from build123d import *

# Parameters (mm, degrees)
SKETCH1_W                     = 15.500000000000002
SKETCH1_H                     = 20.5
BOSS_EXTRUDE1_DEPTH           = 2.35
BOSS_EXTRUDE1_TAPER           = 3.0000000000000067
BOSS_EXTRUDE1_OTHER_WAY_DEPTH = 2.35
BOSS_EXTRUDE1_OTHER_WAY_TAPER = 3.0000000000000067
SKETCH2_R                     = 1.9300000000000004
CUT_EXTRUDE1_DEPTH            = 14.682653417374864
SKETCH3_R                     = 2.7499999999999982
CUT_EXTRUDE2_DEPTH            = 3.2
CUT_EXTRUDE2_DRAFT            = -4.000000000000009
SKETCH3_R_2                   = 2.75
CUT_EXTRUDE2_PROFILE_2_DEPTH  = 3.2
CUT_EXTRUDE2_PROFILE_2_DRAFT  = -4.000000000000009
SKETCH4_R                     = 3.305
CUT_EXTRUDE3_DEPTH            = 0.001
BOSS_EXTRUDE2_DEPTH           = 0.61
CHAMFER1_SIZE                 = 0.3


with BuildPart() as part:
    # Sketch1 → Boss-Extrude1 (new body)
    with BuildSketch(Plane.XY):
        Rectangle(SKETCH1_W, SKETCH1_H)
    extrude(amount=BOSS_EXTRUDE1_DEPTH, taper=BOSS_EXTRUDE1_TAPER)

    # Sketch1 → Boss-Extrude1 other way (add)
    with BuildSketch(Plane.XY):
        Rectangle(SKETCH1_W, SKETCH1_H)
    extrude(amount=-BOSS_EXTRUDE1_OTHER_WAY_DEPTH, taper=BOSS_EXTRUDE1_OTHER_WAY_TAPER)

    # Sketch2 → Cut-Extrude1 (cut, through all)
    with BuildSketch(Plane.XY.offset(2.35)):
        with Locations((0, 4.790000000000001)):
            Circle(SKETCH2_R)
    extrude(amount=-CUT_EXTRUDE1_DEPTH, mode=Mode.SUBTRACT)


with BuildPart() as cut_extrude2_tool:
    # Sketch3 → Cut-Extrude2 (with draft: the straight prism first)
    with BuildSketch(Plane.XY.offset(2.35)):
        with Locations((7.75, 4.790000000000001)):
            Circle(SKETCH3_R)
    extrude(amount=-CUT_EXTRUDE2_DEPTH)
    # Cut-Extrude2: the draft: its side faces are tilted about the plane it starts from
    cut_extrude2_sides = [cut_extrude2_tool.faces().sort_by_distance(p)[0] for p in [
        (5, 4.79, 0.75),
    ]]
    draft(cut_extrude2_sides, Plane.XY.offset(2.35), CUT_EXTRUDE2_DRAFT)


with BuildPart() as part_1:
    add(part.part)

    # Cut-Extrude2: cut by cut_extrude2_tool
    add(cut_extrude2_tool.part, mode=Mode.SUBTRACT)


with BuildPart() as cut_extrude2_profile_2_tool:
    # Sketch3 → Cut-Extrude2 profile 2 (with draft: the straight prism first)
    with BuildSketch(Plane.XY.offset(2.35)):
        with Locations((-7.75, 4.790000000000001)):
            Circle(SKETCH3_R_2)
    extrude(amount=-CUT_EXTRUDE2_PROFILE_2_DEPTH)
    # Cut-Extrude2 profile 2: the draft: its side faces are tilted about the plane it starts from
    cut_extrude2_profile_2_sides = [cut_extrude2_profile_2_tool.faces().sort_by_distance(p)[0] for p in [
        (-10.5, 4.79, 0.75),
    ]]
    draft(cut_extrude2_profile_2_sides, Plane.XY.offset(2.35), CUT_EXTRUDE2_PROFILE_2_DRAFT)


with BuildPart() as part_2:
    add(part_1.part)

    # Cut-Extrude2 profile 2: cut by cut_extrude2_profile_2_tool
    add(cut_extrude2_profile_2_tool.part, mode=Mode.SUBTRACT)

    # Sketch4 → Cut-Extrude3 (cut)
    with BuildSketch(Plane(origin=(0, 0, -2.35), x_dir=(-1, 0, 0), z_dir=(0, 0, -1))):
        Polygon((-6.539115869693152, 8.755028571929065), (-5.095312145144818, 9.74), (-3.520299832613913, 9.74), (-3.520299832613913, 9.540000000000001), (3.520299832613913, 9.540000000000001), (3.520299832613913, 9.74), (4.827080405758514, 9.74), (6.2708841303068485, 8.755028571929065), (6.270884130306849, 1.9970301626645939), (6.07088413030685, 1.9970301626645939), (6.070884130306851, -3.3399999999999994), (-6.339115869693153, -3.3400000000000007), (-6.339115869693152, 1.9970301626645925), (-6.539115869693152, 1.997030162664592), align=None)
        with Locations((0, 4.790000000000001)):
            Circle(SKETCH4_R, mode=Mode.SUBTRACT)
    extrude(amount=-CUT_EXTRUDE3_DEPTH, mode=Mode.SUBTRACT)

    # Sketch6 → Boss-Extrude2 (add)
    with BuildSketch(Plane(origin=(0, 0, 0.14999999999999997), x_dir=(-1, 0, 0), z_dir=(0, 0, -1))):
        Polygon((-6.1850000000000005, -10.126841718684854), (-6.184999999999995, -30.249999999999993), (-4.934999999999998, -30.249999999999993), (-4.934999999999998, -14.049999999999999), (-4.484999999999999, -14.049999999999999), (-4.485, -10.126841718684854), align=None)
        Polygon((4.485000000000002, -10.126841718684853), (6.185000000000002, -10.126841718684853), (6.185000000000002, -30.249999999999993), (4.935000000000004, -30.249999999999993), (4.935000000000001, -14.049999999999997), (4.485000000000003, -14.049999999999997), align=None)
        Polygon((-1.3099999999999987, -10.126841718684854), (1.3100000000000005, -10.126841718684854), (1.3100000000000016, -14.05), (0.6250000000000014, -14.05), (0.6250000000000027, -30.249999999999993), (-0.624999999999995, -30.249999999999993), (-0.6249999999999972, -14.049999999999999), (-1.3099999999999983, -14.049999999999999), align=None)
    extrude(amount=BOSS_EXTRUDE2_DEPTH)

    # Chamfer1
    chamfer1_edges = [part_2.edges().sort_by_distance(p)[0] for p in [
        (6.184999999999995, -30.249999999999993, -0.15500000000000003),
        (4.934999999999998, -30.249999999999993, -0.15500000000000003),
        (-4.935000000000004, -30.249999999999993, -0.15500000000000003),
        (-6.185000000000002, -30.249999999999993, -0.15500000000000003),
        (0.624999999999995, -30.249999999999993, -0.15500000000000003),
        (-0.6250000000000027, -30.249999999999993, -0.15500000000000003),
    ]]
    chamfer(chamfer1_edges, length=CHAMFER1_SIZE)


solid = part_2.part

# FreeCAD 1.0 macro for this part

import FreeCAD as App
import Part
import Sketcher

V = App.Vector
Q = App.Units.Quantity


def edges_at(feature, points):
    """Names of the edges that pass closest to the given points."""
    edges = feature.Shape.Edges
    near = lambda p: min(range(len(edges)), key=lambda i: edges[i].distToShape(Part.Vertex(*p))[0])
    return sorted({f"Edge{near(p) + 1}" for p in points})


def faces_at(feature, points):
    """Names of the faces that lie closest to the given points."""
    faces = feature.Shape.Faces
    near = lambda p: min(range(len(faces)), key=lambda i: faces[i].distToShape(Part.Vertex(*p))[0])
    return sorted({f"Face{near(p) + 1}" for p in points})

doc = App.newDocument("Part")
params = doc.addObject("Spreadsheet::Sheet", "Params")
for row, (alias, value) in enumerate([
    ("sketch1_width", "15.5 mm"),
    ("sketch1_height", "20.5 mm"),
    ("pad1_length", "2.35 mm"),
    ("pad1_taper", "-3 deg"),
    ("sketch2_width", "15.5 mm"),
    ("sketch2_height", "20.5 mm"),
    ("pad2_length", "2.35 mm"),
    ("pad2_taper", "-3 deg"),
    ("sketch3_diameter", "3.86 mm"),
    ("sketch4_diameter", "5.5 mm"),
    ("pad3_length", "3.2 mm"),
    ("draft_angle", "4 deg"),
    ("sketch5_diameter", "5.5 mm"),
    ("pad4_length", "3.2 mm"),
    ("draft2_angle", "4 deg"),
    ("sketch6_diameter", "6.61 mm"),
    ("sketch6_width", "0.2 mm"),
    ("sketch6_width2", "12.41 mm"),
    ("pocket2_length", "0.001 mm"),
    ("sketch7_width", "1.7 mm"),
    ("sketch7_height", "16.2 mm"),
    ("sketch7_width2", "1.25 mm"),
    ("sketch7_width3", "2.62 mm"),
    ("pad5_length", "0.61 mm"),
    ("chamfer_size", "0.3 mm"),
], start=1):
    params.set(f"A{row}", alias)
    params.set(f"B{row}", "=" + value)
    params.setAlias(f"B{row}", alias)

body = doc.addObject("PartDesign::Body", "Body")

# Sketch on XY plane
sketch1 = body.newObject("Sketcher::SketchObject", "Sketch")
sketch1.AttachmentSupport = (doc.getObject("XY_Plane"), [""])
sketch1.MapMode = "FlatFace"
sketch1.addGeometry(Part.LineSegment(V(-7.75, 10.25, 0), V(-7.75, -10.25, 0)), False)
sketch1.addGeometry(Part.LineSegment(V(-7.75, -10.25, 0), V(7.75, -10.25, 0)), False)
sketch1.addGeometry(Part.LineSegment(V(7.75, -10.25, 0), V(7.75, 10.25, 0)), False)
sketch1.addGeometry(Part.LineSegment(V(7.75, 10.25, 0), V(-7.75, 10.25, 0)), False)
sketch1.addConstraint(Sketcher.Constraint("Coincident", 0, 2, 1, 1))
sketch1.addConstraint(Sketcher.Constraint("Coincident", 1, 2, 2, 1))
sketch1.addConstraint(Sketcher.Constraint("Coincident", 2, 2, 3, 1))
sketch1.addConstraint(Sketcher.Constraint("Coincident", 3, 2, 0, 1))
sketch1.addConstraint(Sketcher.Constraint("Vertical", 0))
sketch1.addConstraint(Sketcher.Constraint("Horizontal", 1))
sketch1.addConstraint(Sketcher.Constraint("Vertical", 2))
sketch1.addConstraint(Sketcher.Constraint("Horizontal", 3))
sketch1.addConstraint(Sketcher.Constraint("Symmetric", 0, 2, 2, 2, -1, 1))
sketch1.addConstraint(Sketcher.Constraint("DistanceX", 1, 1, 1, 2, Q("15.5 mm")))
sketch1.addConstraint(Sketcher.Constraint("DistanceY", 0, 2, 0, 1, Q("20.5 mm")))
sketch1.setExpression("Constraints[9]", "Params.sketch1_width")
sketch1.setExpression("Constraints[10]", "Params.sketch1_height")
pad1 = body.newObject("PartDesign::Pad", "Pad")
pad1.Profile = sketch1
pad1.setExpression("Length", "Params.pad1_length")
pad1.setExpression("TaperAngle", "Params.pad1_taper")

# Sketch on XY plane
sketch2 = body.newObject("Sketcher::SketchObject", "Sketch001")
sketch2.AttachmentSupport = (doc.getObject("XY_Plane"), [""])
sketch2.MapMode = "FlatFace"
sketch2.addGeometry(Part.LineSegment(V(-7.75, 10.25, 0), V(-7.75, -10.25, 0)), False)
sketch2.addGeometry(Part.LineSegment(V(-7.75, -10.25, 0), V(7.75, -10.25, 0)), False)
sketch2.addGeometry(Part.LineSegment(V(7.75, -10.25, 0), V(7.75, 10.25, 0)), False)
sketch2.addGeometry(Part.LineSegment(V(7.75, 10.25, 0), V(-7.75, 10.25, 0)), False)
sketch2.addConstraint(Sketcher.Constraint("Coincident", 0, 2, 1, 1))
sketch2.addConstraint(Sketcher.Constraint("Coincident", 1, 2, 2, 1))
sketch2.addConstraint(Sketcher.Constraint("Coincident", 2, 2, 3, 1))
sketch2.addConstraint(Sketcher.Constraint("Coincident", 3, 2, 0, 1))
sketch2.addConstraint(Sketcher.Constraint("Vertical", 0))
sketch2.addConstraint(Sketcher.Constraint("Horizontal", 1))
sketch2.addConstraint(Sketcher.Constraint("Vertical", 2))
sketch2.addConstraint(Sketcher.Constraint("Horizontal", 3))
sketch2.addConstraint(Sketcher.Constraint("Symmetric", 0, 2, 2, 2, -1, 1))
sketch2.addConstraint(Sketcher.Constraint("DistanceX", 1, 1, 1, 2, Q("15.5 mm")))
sketch2.addConstraint(Sketcher.Constraint("DistanceY", 0, 2, 0, 1, Q("20.5 mm")))
sketch2.setExpression("Constraints[9]", "Params.sketch2_width")
sketch2.setExpression("Constraints[10]", "Params.sketch2_height")
pad2 = body.newObject("PartDesign::Pad", "Pad001")
pad2.Profile = sketch2
pad2.setExpression("Length", "Params.pad2_length")
pad2.Reversed = True
pad2.setExpression("TaperAngle", "Params.pad2_taper")

# Sketch on XY plane
sketch3 = body.newObject("Sketcher::SketchObject", "Sketch002")
sketch3.AttachmentSupport = (doc.getObject("XY_Plane"), [""])
sketch3.MapMode = "FlatFace"
sketch3.AttachmentOffset = App.Placement(V(0, 0, 2.35), App.Rotation())
sketch3.addGeometry(Part.Circle(V(0, 4.79, 0), V(0, 0, 1), 1.93), False)
sketch3.addConstraint(Sketcher.Constraint("PointOnObject", 0, 3, -2))
sketch3.addConstraint(Sketcher.Constraint("Diameter", 0, Q("3.86 mm")))
sketch3.addConstraint(Sketcher.Constraint("DistanceY", -1, 1, 0, 3, Q("4.79 mm")))
sketch3.setExpression("Constraints[1]", "Params.sketch3_diameter")
pocket1 = body.newObject("PartDesign::Pocket", "Pocket")
pocket1.Profile = sketch3
pocket1.Type = "ThroughAll"
body2 = doc.addObject("PartDesign::Body", "Body001")

# Sketch on XY plane
sketch4 = body2.newObject("Sketcher::SketchObject", "Sketch003")
sketch4.AttachmentSupport = (doc.getObject("XY_Plane001"), [""])
sketch4.MapMode = "FlatFace"
sketch4.AttachmentOffset = App.Placement(V(0, 0, 2.35), App.Rotation())
sketch4.addGeometry(Part.Circle(V(7.75, 4.79, 0), V(0, 0, 1), 2.75), False)
sketch4.addConstraint(Sketcher.Constraint("Diameter", 0, Q("5.5 mm")))
sketch4.addConstraint(Sketcher.Constraint("DistanceX", -1, 1, 0, 3, Q("7.75 mm")))
sketch4.addConstraint(Sketcher.Constraint("DistanceY", -1, 1, 0, 3, Q("4.79 mm")))
sketch4.setExpression("Constraints[0]", "Params.sketch4_diameter")
pad3 = body2.newObject("PartDesign::Pad", "Pad002")
pad3.Profile = sketch4
pad3.setExpression("Length", "Params.pad3_length")
pad3.Reversed = True
doc.recompute()

datumplane = body2.newObject("PartDesign::Plane", "DatumPlane")
datumplane.AttachmentSupport = (doc.getObject("XY_Plane001"), [""])
datumplane.MapMode = "FlatFace"
datumplane.AttachmentOffset = App.Placement(V(0, 0, 2.35), App.Rotation())
draft = body2.newObject("PartDesign::Draft", "Draft")
draft.Base = (pad3, faces_at(pad3, [(5, 4.79, 0.75)]))
draft.NeutralPlane = (datumplane, [""])
draft.setExpression("Angle", "Params.draft_angle")
draft.Reversed = True
doc.recompute()

boolean = body.newObject("PartDesign::Boolean", "Boolean")
boolean.Type = "Cut"
boolean.addObjects([body2])
body3 = doc.addObject("PartDesign::Body", "Body002")

# Sketch on XY plane
sketch5 = body3.newObject("Sketcher::SketchObject", "Sketch004")
sketch5.AttachmentSupport = (doc.getObject("XY_Plane002"), [""])
sketch5.MapMode = "FlatFace"
sketch5.AttachmentOffset = App.Placement(V(0, 0, 2.35), App.Rotation())
sketch5.addGeometry(Part.Circle(V(-7.75, 4.79, 0), V(0, 0, 1), 2.75), False)
sketch5.addConstraint(Sketcher.Constraint("Diameter", 0, Q("5.5 mm")))
sketch5.addConstraint(Sketcher.Constraint("DistanceX", 0, 3, -1, 1, Q("7.75 mm")))
sketch5.addConstraint(Sketcher.Constraint("DistanceY", -1, 1, 0, 3, Q("4.79 mm")))
sketch5.setExpression("Constraints[0]", "Params.sketch5_diameter")
pad4 = body3.newObject("PartDesign::Pad", "Pad003")
pad4.Profile = sketch5
pad4.setExpression("Length", "Params.pad4_length")
pad4.Reversed = True
doc.recompute()

datumplane2 = body3.newObject("PartDesign::Plane", "DatumPlane001")
datumplane2.AttachmentSupport = (doc.getObject("XY_Plane002"), [""])
datumplane2.MapMode = "FlatFace"
datumplane2.AttachmentOffset = App.Placement(V(0, 0, 2.35), App.Rotation())
draft2 = body3.newObject("PartDesign::Draft", "Draft001")
draft2.Base = (pad4, faces_at(pad4, [(-10.5, 4.79, 0.75)]))
draft2.NeutralPlane = (datumplane2, [""])
draft2.setExpression("Angle", "Params.draft2_angle")
draft2.Reversed = True
doc.recompute()

boolean2 = body.newObject("PartDesign::Boolean", "Boolean001")
boolean2.Type = "Cut"
boolean2.addObjects([body3])

# Sketch on XY plane
sketch6 = body.newObject("Sketcher::SketchObject", "Sketch005")
sketch6.AttachmentSupport = (doc.getObject("XY_Plane"), [""])
sketch6.MapMode = "FlatFace"
sketch6.AttachmentOffset = App.Placement(V(0, 0, -2.35), App.Rotation())
sketch6.addGeometry(Part.LineSegment(V(5.095312, 9.74, 0), V(6.539116, 8.755029, 0)), False)
sketch6.addGeometry(Part.LineSegment(V(6.539116, 8.755029, 0), V(6.539116, 1.99703, 0)), False)
sketch6.addGeometry(Part.LineSegment(V(6.539116, 1.99703, 0), V(6.339116, 1.99703, 0)), False)
sketch6.addGeometry(Part.LineSegment(V(6.339116, 1.99703, 0), V(6.339116, -3.34, 0)), False)
sketch6.addGeometry(Part.LineSegment(V(6.339116, -3.34, 0), V(-6.070884, -3.34, 0)), False)
sketch6.addGeometry(Part.LineSegment(V(-6.070884, -3.34, 0), V(-6.070884, 1.99703, 0)), False)
sketch6.addGeometry(Part.LineSegment(V(-6.070884, 1.99703, 0), V(-6.270884, 1.99703, 0)), False)
sketch6.addGeometry(Part.LineSegment(V(-6.270884, 1.99703, 0), V(-6.270884, 8.755029, 0)), False)
sketch6.addGeometry(Part.LineSegment(V(-6.270884, 8.755029, 0), V(-4.82708, 9.74, 0)), False)
sketch6.addGeometry(Part.LineSegment(V(-4.82708, 9.74, 0), V(-3.5203, 9.74, 0)), False)
sketch6.addGeometry(Part.LineSegment(V(-3.5203, 9.74, 0), V(-3.5203, 9.54, 0)), False)
sketch6.addGeometry(Part.LineSegment(V(-3.5203, 9.54, 0), V(3.5203, 9.54, 0)), False)
sketch6.addGeometry(Part.LineSegment(V(3.5203, 9.54, 0), V(3.5203, 9.74, 0)), False)
sketch6.addGeometry(Part.LineSegment(V(3.5203, 9.74, 0), V(5.095312, 9.74, 0)), False)
sketch6.addGeometry(Part.Circle(V(0, 4.79, 0), V(0, 0, 1), 3.305), False)
sketch6.addConstraint(Sketcher.Constraint("Coincident", 0, 2, 1, 1))
sketch6.addConstraint(Sketcher.Constraint("Coincident", 1, 2, 2, 1))
sketch6.addConstraint(Sketcher.Constraint("Coincident", 2, 2, 3, 1))
sketch6.addConstraint(Sketcher.Constraint("Coincident", 3, 2, 4, 1))
sketch6.addConstraint(Sketcher.Constraint("Coincident", 4, 2, 5, 1))
sketch6.addConstraint(Sketcher.Constraint("Coincident", 5, 2, 6, 1))
sketch6.addConstraint(Sketcher.Constraint("Coincident", 6, 2, 7, 1))
sketch6.addConstraint(Sketcher.Constraint("Coincident", 7, 2, 8, 1))
sketch6.addConstraint(Sketcher.Constraint("Coincident", 8, 2, 9, 1))
sketch6.addConstraint(Sketcher.Constraint("Coincident", 9, 2, 10, 1))
sketch6.addConstraint(Sketcher.Constraint("Coincident", 10, 2, 11, 1))
sketch6.addConstraint(Sketcher.Constraint("Coincident", 11, 2, 12, 1))
sketch6.addConstraint(Sketcher.Constraint("Coincident", 12, 2, 13, 1))
sketch6.addConstraint(Sketcher.Constraint("Coincident", 13, 2, 0, 1))
sketch6.addConstraint(Sketcher.Constraint("Vertical", 1))
sketch6.addConstraint(Sketcher.Constraint("Horizontal", 2))
sketch6.addConstraint(Sketcher.Constraint("Vertical", 3))
sketch6.addConstraint(Sketcher.Constraint("Horizontal", 4))
sketch6.addConstraint(Sketcher.Constraint("Vertical", 5))
sketch6.addConstraint(Sketcher.Constraint("Horizontal", 6))
sketch6.addConstraint(Sketcher.Constraint("Vertical", 7))
sketch6.addConstraint(Sketcher.Constraint("Horizontal", 9))
sketch6.addConstraint(Sketcher.Constraint("Vertical", 10))
sketch6.addConstraint(Sketcher.Constraint("Horizontal", 11))
sketch6.addConstraint(Sketcher.Constraint("Vertical", 12))
sketch6.addConstraint(Sketcher.Constraint("Horizontal", 13))
sketch6.addConstraint(Sketcher.Constraint("Symmetric", 9, 2, 12, 2, -2))
sketch6.addConstraint(Sketcher.Constraint("PointOnObject", 14, 3, -2))
sketch6.addConstraint(Sketcher.Constraint("Horizontal", 2, 2, 5, 2))
sketch6.addConstraint(Sketcher.Constraint("Horizontal", 0, 2, 7, 2))
sketch6.addConstraint(Sketcher.Constraint("Equal", 2, 6))
sketch6.addConstraint(Sketcher.Constraint("Equal", 6, 10))
sketch6.addConstraint(Sketcher.Constraint("Equal", 0, 8))
sketch6.addConstraint(Sketcher.Constraint("Diameter", 14, Q("6.61 mm")))
sketch6.addConstraint(Sketcher.Constraint("DistanceX", 2, 2, 2, 1, Q("0.2 mm")))
sketch6.addConstraint(Sketcher.Constraint("DistanceX", 4, 2, 4, 1, Q("12.41 mm")))
sketch6.addConstraint(Sketcher.Constraint("DistanceY", 1, 2, 1, 1, Q("6.757998 mm")))
sketch6.addConstraint(Sketcher.Constraint("DistanceY", -1, 1, 14, 3, Q("4.79 mm")))
sketch6.addConstraint(Sketcher.Constraint("DistanceY", 3, 2, -1, 1, Q("3.34 mm")))
sketch6.addConstraint(Sketcher.Constraint("DistanceY", -1, 1, 8, 2, Q("9.74 mm")))
sketch6.addConstraint(Sketcher.Constraint("DistanceX", 11, 1, 11, 2, Q("7.0406 mm")))
sketch6.addConstraint(Sketcher.Constraint("DistanceX", 9, 1, 9, 2, Q("1.306781 mm")))
sketch6.addConstraint(Sketcher.Constraint("DistanceY", 3, 2, 3, 1, Q("5.33703 mm")))
sketch6.addConstraint(Sketcher.Constraint("Distance", 0, Q("1.747781 mm")))
sketch6.setExpression("Constraints[33]", "Params.sketch6_diameter")
sketch6.setExpression("Constraints[34]", "Params.sketch6_width")
sketch6.setExpression("Constraints[35]", "Params.sketch6_width2")
pocket2 = body.newObject("PartDesign::Pocket", "Pocket001")
pocket2.Profile = sketch6
pocket2.setExpression("Length", "Params.pocket2_length")
pocket2.Reversed = True

# Sketch on XY plane
sketch7 = body.newObject("Sketcher::SketchObject", "Sketch006")
sketch7.AttachmentSupport = (doc.getObject("XY_Plane"), [""])
sketch7.MapMode = "FlatFace"
sketch7.AttachmentOffset = App.Placement(V(0, 0, 0.15), App.Rotation())
sketch7.addGeometry(Part.LineSegment(V(6.185, -10.126842, 0), V(6.185, -30.25, 0)), False)
sketch7.addGeometry(Part.LineSegment(V(6.185, -30.25, 0), V(4.935, -30.25, 0)), False)
sketch7.addGeometry(Part.LineSegment(V(4.935, -30.25, 0), V(4.935, -14.05, 0)), False)
sketch7.addGeometry(Part.LineSegment(V(4.935, -14.05, 0), V(4.485, -14.05, 0)), False)
sketch7.addGeometry(Part.LineSegment(V(4.485, -14.05, 0), V(4.485, -10.126842, 0)), False)
sketch7.addGeometry(Part.LineSegment(V(4.485, -10.126842, 0), V(6.185, -10.126842, 0)), False)
sketch7.addGeometry(Part.LineSegment(V(-6.185, -10.126842, 0), V(-4.485, -10.126842, 0)), False)
sketch7.addGeometry(Part.LineSegment(V(-4.485, -10.126842, 0), V(-4.485, -14.05, 0)), False)
sketch7.addGeometry(Part.LineSegment(V(-4.485, -14.05, 0), V(-4.935, -14.05, 0)), False)
sketch7.addGeometry(Part.LineSegment(V(-4.935, -14.05, 0), V(-4.935, -30.25, 0)), False)
sketch7.addGeometry(Part.LineSegment(V(-4.935, -30.25, 0), V(-6.185, -30.25, 0)), False)
sketch7.addGeometry(Part.LineSegment(V(-6.185, -30.25, 0), V(-6.185, -10.126842, 0)), False)
sketch7.addGeometry(Part.LineSegment(V(-1.31, -10.126842, 0), V(1.31, -10.126842, 0)), False)
sketch7.addGeometry(Part.LineSegment(V(1.31, -10.126842, 0), V(1.31, -14.05, 0)), False)
sketch7.addGeometry(Part.LineSegment(V(1.31, -14.05, 0), V(0.625, -14.05, 0)), False)
sketch7.addGeometry(Part.LineSegment(V(0.625, -14.05, 0), V(0.625, -30.25, 0)), False)
sketch7.addGeometry(Part.LineSegment(V(0.625, -30.25, 0), V(-0.625, -30.25, 0)), False)
sketch7.addGeometry(Part.LineSegment(V(-0.625, -30.25, 0), V(-0.625, -14.05, 0)), False)
sketch7.addGeometry(Part.LineSegment(V(-0.625, -14.05, 0), V(-1.31, -14.05, 0)), False)
sketch7.addGeometry(Part.LineSegment(V(-1.31, -14.05, 0), V(-1.31, -10.126842, 0)), False)
sketch7.addConstraint(Sketcher.Constraint("Coincident", 0, 2, 1, 1))
sketch7.addConstraint(Sketcher.Constraint("Coincident", 1, 2, 2, 1))
sketch7.addConstraint(Sketcher.Constraint("Coincident", 2, 2, 3, 1))
sketch7.addConstraint(Sketcher.Constraint("Coincident", 3, 2, 4, 1))
sketch7.addConstraint(Sketcher.Constraint("Coincident", 4, 2, 5, 1))
sketch7.addConstraint(Sketcher.Constraint("Coincident", 5, 2, 0, 1))
sketch7.addConstraint(Sketcher.Constraint("Coincident", 6, 2, 7, 1))
sketch7.addConstraint(Sketcher.Constraint("Coincident", 7, 2, 8, 1))
sketch7.addConstraint(Sketcher.Constraint("Coincident", 8, 2, 9, 1))
sketch7.addConstraint(Sketcher.Constraint("Coincident", 9, 2, 10, 1))
sketch7.addConstraint(Sketcher.Constraint("Coincident", 10, 2, 11, 1))
sketch7.addConstraint(Sketcher.Constraint("Coincident", 11, 2, 6, 1))
sketch7.addConstraint(Sketcher.Constraint("Coincident", 12, 2, 13, 1))
sketch7.addConstraint(Sketcher.Constraint("Coincident", 13, 2, 14, 1))
sketch7.addConstraint(Sketcher.Constraint("Coincident", 14, 2, 15, 1))
sketch7.addConstraint(Sketcher.Constraint("Coincident", 15, 2, 16, 1))
sketch7.addConstraint(Sketcher.Constraint("Coincident", 16, 2, 17, 1))
sketch7.addConstraint(Sketcher.Constraint("Coincident", 17, 2, 18, 1))
sketch7.addConstraint(Sketcher.Constraint("Coincident", 18, 2, 19, 1))
sketch7.addConstraint(Sketcher.Constraint("Coincident", 19, 2, 12, 1))
sketch7.addConstraint(Sketcher.Constraint("Vertical", 0))
sketch7.addConstraint(Sketcher.Constraint("Horizontal", 1))
sketch7.addConstraint(Sketcher.Constraint("Vertical", 2))
sketch7.addConstraint(Sketcher.Constraint("Horizontal", 3))
sketch7.addConstraint(Sketcher.Constraint("Vertical", 4))
sketch7.addConstraint(Sketcher.Constraint("Horizontal", 5))
sketch7.addConstraint(Sketcher.Constraint("Horizontal", 6))
sketch7.addConstraint(Sketcher.Constraint("Vertical", 7))
sketch7.addConstraint(Sketcher.Constraint("Horizontal", 8))
sketch7.addConstraint(Sketcher.Constraint("Vertical", 9))
sketch7.addConstraint(Sketcher.Constraint("Horizontal", 10))
sketch7.addConstraint(Sketcher.Constraint("Vertical", 11))
sketch7.addConstraint(Sketcher.Constraint("Horizontal", 12))
sketch7.addConstraint(Sketcher.Constraint("Vertical", 13))
sketch7.addConstraint(Sketcher.Constraint("Horizontal", 14))
sketch7.addConstraint(Sketcher.Constraint("Vertical", 15))
sketch7.addConstraint(Sketcher.Constraint("Horizontal", 16))
sketch7.addConstraint(Sketcher.Constraint("Vertical", 17))
sketch7.addConstraint(Sketcher.Constraint("Horizontal", 18))
sketch7.addConstraint(Sketcher.Constraint("Vertical", 19))
sketch7.addConstraint(Sketcher.Constraint("Symmetric", 4, 2, 6, 2, -2))
sketch7.addConstraint(Sketcher.Constraint("Symmetric", 2, 2, 8, 2, -2))
sketch7.addConstraint(Sketcher.Constraint("Symmetric", 0, 2, 10, 2, -2))
sketch7.addConstraint(Sketcher.Constraint("Symmetric", 14, 2, 17, 2, -2))
sketch7.addConstraint(Sketcher.Constraint("Horizontal", 11, 2, 12, 2))
sketch7.addConstraint(Sketcher.Constraint("Horizontal", 8, 2, 13, 2))
sketch7.addConstraint(Sketcher.Constraint("Horizontal", 10, 2, 15, 2))
sketch7.addConstraint(Sketcher.Constraint("Equal", 10, 16))
sketch7.addConstraint(Sketcher.Constraint("Equal", 14, 18))
sketch7.addConstraint(Sketcher.Constraint("DistanceX", 5, 1, 5, 2, Q("1.7 mm")))
sketch7.addConstraint(Sketcher.Constraint("DistanceY", 2, 1, 2, 2, Q("16.2 mm")))
sketch7.addConstraint(Sketcher.Constraint("DistanceX", 1, 2, 1, 1, Q("1.25 mm")))
sketch7.addConstraint(Sketcher.Constraint("DistanceX", 12, 1, 12, 2, Q("2.62 mm")))
sketch7.addConstraint(Sketcher.Constraint("DistanceY", 0, 2, -1, 1, Q("30.25 mm")))
sketch7.addConstraint(Sketcher.Constraint("DistanceX", 6, 2, 4, 2, Q("8.97 mm")))
sketch7.addConstraint(Sketcher.Constraint("DistanceY", 0, 2, 0, 1, Q("20.123158 mm")))
sketch7.setExpression("Constraints[49]", "Params.sketch7_width")
sketch7.setExpression("Constraints[50]", "Params.sketch7_height")
sketch7.setExpression("Constraints[51]", "Params.sketch7_width2")
sketch7.setExpression("Constraints[52]", "Params.sketch7_width3")
pad5 = body.newObject("PartDesign::Pad", "Pad004")
pad5.Profile = sketch7
pad5.setExpression("Length", "Params.pad5_length")
pad5.Reversed = True
doc.recompute()

chamfer = body.newObject("PartDesign::Chamfer", "Chamfer")
chamfer.Base = (pad5, edges_at(pad5, [
    (6.185, -30.25, -0.155),
    (4.935, -30.25, -0.155),
    (-4.935, -30.25, -0.155),
    (-6.185, -30.25, -0.155),
    (0.625, -30.25, -0.155),
    (-0.625, -30.25, -0.155),
]))
chamfer.setExpression("Size", "Params.chamfer_size")

doc.recompute()
